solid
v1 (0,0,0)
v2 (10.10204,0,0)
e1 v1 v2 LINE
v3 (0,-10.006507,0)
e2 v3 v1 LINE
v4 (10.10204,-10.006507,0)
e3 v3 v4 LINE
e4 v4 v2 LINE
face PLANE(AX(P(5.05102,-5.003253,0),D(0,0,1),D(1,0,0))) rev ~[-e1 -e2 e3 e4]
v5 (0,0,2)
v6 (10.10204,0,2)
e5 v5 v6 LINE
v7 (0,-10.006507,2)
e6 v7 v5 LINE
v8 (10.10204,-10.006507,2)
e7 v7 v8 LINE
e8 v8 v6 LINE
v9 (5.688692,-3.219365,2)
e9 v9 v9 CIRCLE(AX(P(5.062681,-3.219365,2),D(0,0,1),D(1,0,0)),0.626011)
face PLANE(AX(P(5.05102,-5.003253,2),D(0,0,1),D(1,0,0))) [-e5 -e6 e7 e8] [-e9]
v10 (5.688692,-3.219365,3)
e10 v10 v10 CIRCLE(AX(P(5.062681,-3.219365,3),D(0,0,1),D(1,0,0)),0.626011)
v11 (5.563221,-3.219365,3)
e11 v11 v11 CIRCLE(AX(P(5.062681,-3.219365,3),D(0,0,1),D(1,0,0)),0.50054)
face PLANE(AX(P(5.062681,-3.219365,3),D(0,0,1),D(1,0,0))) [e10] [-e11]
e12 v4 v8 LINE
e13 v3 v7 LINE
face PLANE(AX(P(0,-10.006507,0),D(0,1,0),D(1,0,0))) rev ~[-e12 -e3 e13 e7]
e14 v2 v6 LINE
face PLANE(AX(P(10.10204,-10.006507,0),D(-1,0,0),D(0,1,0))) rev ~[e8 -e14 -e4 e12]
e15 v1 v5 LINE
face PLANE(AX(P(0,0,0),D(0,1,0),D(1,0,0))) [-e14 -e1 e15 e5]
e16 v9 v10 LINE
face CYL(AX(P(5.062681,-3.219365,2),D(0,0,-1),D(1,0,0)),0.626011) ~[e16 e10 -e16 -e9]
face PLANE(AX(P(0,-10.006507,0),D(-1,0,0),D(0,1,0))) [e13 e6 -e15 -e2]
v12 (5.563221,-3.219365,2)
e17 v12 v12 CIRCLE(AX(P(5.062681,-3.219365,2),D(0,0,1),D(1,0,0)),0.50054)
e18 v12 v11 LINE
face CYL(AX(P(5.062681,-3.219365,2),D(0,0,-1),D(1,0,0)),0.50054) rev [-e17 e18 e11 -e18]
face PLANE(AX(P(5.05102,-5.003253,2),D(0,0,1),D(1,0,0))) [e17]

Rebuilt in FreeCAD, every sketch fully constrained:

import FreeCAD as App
import Part
import Sketcher

V = App.Vector


def add_polygon(sketch, points):
    """Adds a closed chain of lines whose ends are joined by coincident constraints."""
    first, n = sketch.GeometryCount, len(points)
    for a, b in zip(points, points[1:] + points[:1]):
        sketch.addGeometry(Part.LineSegment(App.Vector(*a, 0), App.Vector(*b, 0)), False)
    for i in range(n):
        sketch.addConstraint(Sketcher.Constraint("Coincident", first + i, 2, first + (i + 1) % n, 1))

doc = App.newDocument("Part")
body = doc.addObject("PartDesign::Body", "Body")

# Sketch on XY plane
sketch1 = body.newObject("Sketcher::SketchObject", "Sketch")
sketch1.AttachmentSupport = (doc.getObject("XY_Plane"), [""])
sketch1.MapMode = "FlatFace"
add_polygon(sketch1, [(0, 0), (0, -10.006507), (10.10204, -10.006507), (10.10204, 0)])  # lines 0-3
sketch1.addConstraint(Sketcher.Constraint("Vertical", 0))
sketch1.addConstraint(Sketcher.Constraint("Horizontal", 1))
sketch1.addConstraint(Sketcher.Constraint("Vertical", 2))
sketch1.addConstraint(Sketcher.Constraint("Horizontal", 3))
sketch1.addConstraint(Sketcher.Constraint("Coincident", 3, 2, -1, 1))
sketch1.addConstraint(Sketcher.Constraint("DistanceX", 1, 1, 1, 2, 10.10204))
sketch1.addConstraint(Sketcher.Constraint("DistanceY", 0, 2, 0, 1, 10.006507))
pad1 = body.newObject("PartDesign::Pad", "Pad")
pad1.Profile = sketch1
pad1.Length = 2

# Sketch on XY plane
sketch2 = body.newObject("Sketcher::SketchObject", "Sketch001")
sketch2.AttachmentSupport = (doc.getObject("XY_Plane"), [""])
sketch2.MapMode = "FlatFace"
sketch2.AttachmentOffset = App.Placement(V(0, 0, 2), App.Rotation())
sketch2.addGeometry(Part.Circle(V(5.062681, -3.219365, 0), V(0, 0, 1), 0.626011), False)
sketch2.addGeometry(Part.Circle(V(5.062681, -3.219365, 0), V(0, 0, 1), 0.50054), False)
sketch2.addConstraint(Sketcher.Constraint("Coincident", 1, 3, 0, 3))
sketch2.addConstraint(Sketcher.Constraint("Diameter", 1, 1.00108))
sketch2.addConstraint(Sketcher.Constraint("Diameter", 0, 1.252022))
sketch2.addConstraint(Sketcher.Constraint("DistanceX", -1, 1, 0, 3, 5.062681))
sketch2.addConstraint(Sketcher.Constraint("DistanceY", 0, 3, -1, 1, 3.219365))
pad2 = body.newObject("PartDesign::Pad", "Pad001")
pad2.Profile = sketch2
pad2.Length = 1

doc.recompute()
